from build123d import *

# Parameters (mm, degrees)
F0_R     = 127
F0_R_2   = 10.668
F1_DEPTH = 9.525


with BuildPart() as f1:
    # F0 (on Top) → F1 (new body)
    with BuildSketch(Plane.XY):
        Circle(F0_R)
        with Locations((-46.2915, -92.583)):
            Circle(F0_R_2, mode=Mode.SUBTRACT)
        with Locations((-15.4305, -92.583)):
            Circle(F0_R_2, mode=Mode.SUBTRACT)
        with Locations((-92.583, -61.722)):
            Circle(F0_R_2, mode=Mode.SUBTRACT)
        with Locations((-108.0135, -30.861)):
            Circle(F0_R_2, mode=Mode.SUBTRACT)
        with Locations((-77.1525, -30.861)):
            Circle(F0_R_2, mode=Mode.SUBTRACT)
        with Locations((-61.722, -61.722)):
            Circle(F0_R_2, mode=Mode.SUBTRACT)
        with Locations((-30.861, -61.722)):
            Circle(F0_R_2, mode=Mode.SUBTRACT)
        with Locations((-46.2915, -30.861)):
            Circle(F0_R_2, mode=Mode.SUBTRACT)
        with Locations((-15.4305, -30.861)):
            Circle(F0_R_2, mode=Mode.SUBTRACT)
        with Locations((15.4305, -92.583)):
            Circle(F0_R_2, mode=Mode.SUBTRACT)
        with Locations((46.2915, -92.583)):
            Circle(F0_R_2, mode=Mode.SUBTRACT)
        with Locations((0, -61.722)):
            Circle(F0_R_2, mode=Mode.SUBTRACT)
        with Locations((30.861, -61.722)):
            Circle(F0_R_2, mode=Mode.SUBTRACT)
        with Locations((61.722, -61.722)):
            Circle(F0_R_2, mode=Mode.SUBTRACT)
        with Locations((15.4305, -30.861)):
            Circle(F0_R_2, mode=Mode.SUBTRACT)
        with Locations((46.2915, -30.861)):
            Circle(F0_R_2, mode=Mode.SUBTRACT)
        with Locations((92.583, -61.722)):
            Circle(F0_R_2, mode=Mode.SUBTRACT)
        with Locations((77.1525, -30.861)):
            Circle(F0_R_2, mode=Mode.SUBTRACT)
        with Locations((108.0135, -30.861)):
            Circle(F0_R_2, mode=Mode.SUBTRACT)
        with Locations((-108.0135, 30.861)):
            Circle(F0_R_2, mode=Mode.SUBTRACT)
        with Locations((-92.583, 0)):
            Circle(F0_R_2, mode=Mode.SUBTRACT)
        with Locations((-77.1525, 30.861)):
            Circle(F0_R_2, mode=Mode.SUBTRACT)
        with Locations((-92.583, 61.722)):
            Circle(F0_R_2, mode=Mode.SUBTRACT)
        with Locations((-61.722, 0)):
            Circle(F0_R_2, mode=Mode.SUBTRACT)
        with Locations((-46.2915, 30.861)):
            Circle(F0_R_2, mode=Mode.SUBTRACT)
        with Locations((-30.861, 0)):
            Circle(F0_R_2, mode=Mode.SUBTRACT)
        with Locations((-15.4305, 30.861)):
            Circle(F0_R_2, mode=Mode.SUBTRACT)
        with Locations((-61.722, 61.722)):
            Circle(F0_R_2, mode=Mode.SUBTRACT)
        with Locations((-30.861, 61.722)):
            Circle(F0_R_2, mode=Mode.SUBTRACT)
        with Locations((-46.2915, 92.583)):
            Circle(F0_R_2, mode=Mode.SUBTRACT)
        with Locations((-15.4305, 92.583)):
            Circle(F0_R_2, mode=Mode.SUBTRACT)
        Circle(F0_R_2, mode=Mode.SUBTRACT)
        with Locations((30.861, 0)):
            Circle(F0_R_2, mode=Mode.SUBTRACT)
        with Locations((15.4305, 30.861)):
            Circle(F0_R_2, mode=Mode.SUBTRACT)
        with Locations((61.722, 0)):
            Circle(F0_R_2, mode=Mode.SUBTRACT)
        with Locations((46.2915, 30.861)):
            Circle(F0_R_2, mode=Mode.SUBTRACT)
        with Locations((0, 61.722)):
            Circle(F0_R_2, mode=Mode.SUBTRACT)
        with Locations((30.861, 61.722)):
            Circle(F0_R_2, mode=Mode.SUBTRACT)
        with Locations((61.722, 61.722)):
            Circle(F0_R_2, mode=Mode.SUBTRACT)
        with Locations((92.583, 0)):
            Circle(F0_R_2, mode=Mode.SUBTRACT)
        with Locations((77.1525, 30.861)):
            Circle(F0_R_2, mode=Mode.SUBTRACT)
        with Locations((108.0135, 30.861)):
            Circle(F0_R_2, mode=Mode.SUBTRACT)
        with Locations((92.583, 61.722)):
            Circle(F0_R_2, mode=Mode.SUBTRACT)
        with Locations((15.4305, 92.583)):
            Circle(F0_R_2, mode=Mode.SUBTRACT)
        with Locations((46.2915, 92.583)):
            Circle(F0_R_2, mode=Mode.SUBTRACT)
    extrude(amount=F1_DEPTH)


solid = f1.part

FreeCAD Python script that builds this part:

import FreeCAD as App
import Part
import Sketcher
Q = App.Units.Quantity

doc = App.newDocument("Part")
params = doc.addObject("Spreadsheet::Sheet", "Params")
for row, (alias, value) in enumerate([
    ("sketch1_diameter", "10 in"),
    ("sketch1_diameter2", "0.84 in"),
    ("pad1_length", "0.375 in"),
], start=1):
    params.set(f"A{row}", alias)
    params.set(f"B{row}", "=" + value)
    params.setAlias(f"B{row}", alias)

body = doc.addObject("PartDesign::Body", "Body")

sketch1 = body.newObject("Sketcher::SketchObject", "Sketch")
sketch1.AttachmentSupport = (doc.getObject("XY_Plane"), [""])
sketch1.MapMode = "FlatFace"
sketch1.addGeometry([
    Part.Circle(App.Vector(0, 0, 0), App.Vector(0, 0, 1), 127),
    Part.Circle(App.Vector(-92.583, -61.722, 0), App.Vector(0, 0, 1), 10.668),
    Part.Circle(App.Vector(-61.722, -61.722, 0), App.Vector(0, 0, 1), 10.668),
    Part.Circle(App.Vector(-46.2915, -92.583, 0), App.Vector(0, 0, 1), 10.668),
    Part.Circle(App.Vector(-15.4305, -92.583, 0), App.Vector(0, 0, 1), 10.668),
    Part.Circle(App.Vector(-30.861, -61.722, 0), App.Vector(0, 0, 1), 10.668),
    Part.Circle(App.Vector(-108.0135, -30.861, 0), App.Vector(0, 0, 1), 10.668),
    Part.Circle(App.Vector(-77.1525, -30.861, 0), App.Vector(0, 0, 1), 10.668),
    Part.Circle(App.Vector(-46.2915, -30.861, 0), App.Vector(0, 0, 1), 10.668),
    Part.Circle(App.Vector(-15.4305, -30.861, 0), App.Vector(0, 0, 1), 10.668),
    Part.Circle(App.Vector(15.4305, -92.583, 0), App.Vector(0, 0, 1), 10.668),
    Part.Circle(App.Vector(46.2915, -92.583, 0), App.Vector(0, 0, 1), 10.668),
    Part.Circle(App.Vector(0, -61.722, 0), App.Vector(0, 0, 1), 10.668),
    Part.Circle(App.Vector(30.861, -61.722, 0), App.Vector(0, 0, 1), 10.668),
    Part.Circle(App.Vector(61.722, -61.722, 0), App.Vector(0, 0, 1), 10.668),
    Part.Circle(App.Vector(92.583, -61.722, 0), App.Vector(0, 0, 1), 10.668),
    Part.Circle(App.Vector(15.4305, -30.861, 0), App.Vector(0, 0, 1), 10.668),
    Part.Circle(App.Vector(46.2915, -30.861, 0), App.Vector(0, 0, 1), 10.668),
    Part.Circle(App.Vector(77.1525, -30.861, 0), App.Vector(0, 0, 1), 10.668),
    Part.Circle(App.Vector(108.0135, -30.861, 0), App.Vector(0, 0, 1), 10.668),
    Part.Circle(App.Vector(-92.583, 0, 0), App.Vector(0, 0, 1), 10.668),
    Part.Circle(App.Vector(-61.722, 0, 0), App.Vector(0, 0, 1), 10.668),
    Part.Circle(App.Vector(-108.0135, 30.861, 0), App.Vector(0, 0, 1), 10.668),
    Part.Circle(App.Vector(-77.1525, 30.861, 0), App.Vector(0, 0, 1), 10.668),
    Part.Circle(App.Vector(-30.861, 0, 0), App.Vector(0, 0, 1), 10.668),
    Part.Circle(App.Vector(-46.2915, 30.861, 0), App.Vector(0, 0, 1), 10.668),
    Part.Circle(App.Vector(-15.4305, 30.861, 0), App.Vector(0, 0, 1), 10.668),
    Part.Circle(App.Vector(-92.583, 61.722, 0), App.Vector(0, 0, 1), 10.668),
    Part.Circle(App.Vector(-61.722, 61.722, 0), App.Vector(0, 0, 1), 10.668),
    Part.Circle(App.Vector(-30.861, 61.722, 0), App.Vector(0, 0, 1), 10.668),
    Part.Circle(App.Vector(-46.2915, 92.583, 0), App.Vector(0, 0, 1), 10.668),
    Part.Circle(App.Vector(-15.4305, 92.583, 0), App.Vector(0, 0, 1), 10.668),
    Part.Circle(App.Vector(0, 0, 0), App.Vector(0, 0, 1), 10.668),
    Part.Circle(App.Vector(30.861, 0, 0), App.Vector(0, 0, 1), 10.668),
    Part.Circle(App.Vector(15.4305, 30.861, 0), App.Vector(0, 0, 1), 10.668),
    Part.Circle(App.Vector(46.2915, 30.861, 0), App.Vector(0, 0, 1), 10.668),
    Part.Circle(App.Vector(61.722, 0, 0), App.Vector(0, 0, 1), 10.668),
    Part.Circle(App.Vector(92.583, 0, 0), App.Vector(0, 0, 1), 10.668),
    Part.Circle(App.Vector(77.1525, 30.861, 0), App.Vector(0, 0, 1), 10.668),
    Part.Circle(App.Vector(108.0135, 30.861, 0), App.Vector(0, 0, 1), 10.668),
    Part.Circle(App.Vector(0, 61.722, 0), App.Vector(0, 0, 1), 10.668),
    Part.Circle(App.Vector(30.861, 61.722, 0), App.Vector(0, 0, 1), 10.668),
    Part.Circle(App.Vector(15.4305, 92.583, 0), App.Vector(0, 0, 1), 10.668),
    Part.Circle(App.Vector(46.2915, 92.583, 0), App.Vector(0, 0, 1), 10.668),
    Part.Circle(App.Vector(61.722, 61.722, 0), App.Vector(0, 0, 1), 10.668),
    Part.Circle(App.Vector(92.583, 61.722, 0), App.Vector(0, 0, 1), 10.668),
], False)
sketch1.addConstraint([
    Sketcher.Constraint("Coincident", 0, 3, -1, 1),
    Sketcher.Constraint("Coincident", 32, 3, -1, 1),
    Sketcher.Constraint("Equal", 1, 2),
    Sketcher.Constraint("Equal", 2, 3),
    Sketcher.Constraint("Equal", 3, 4),
    Sketcher.Constraint("Equal", 4, 5),
    Sketcher.Constraint("Equal", 5, 6),
    Sketcher.Constraint("Equal", 6, 7),
    Sketcher.Constraint("Equal", 7, 8),
    Sketcher.Constraint("Equal", 8, 9),
    Sketcher.Constraint("Equal", 9, 10),
    Sketcher.Constraint("Equal", 10, 11),
    Sketcher.Constraint("Equal", 11, 12),
    Sketcher.Constraint("Equal", 12, 13),
    Sketcher.Constraint("Equal", 13, 14),
    Sketcher.Constraint("Equal", 14, 15),
    Sketcher.Constraint("Equal", 15, 16),
    Sketcher.Constraint("Equal", 16, 17),
    Sketcher.Constraint("Equal", 17, 18),
    Sketcher.Constraint("Equal", 18, 19),
    Sketcher.Constraint("Equal", 19, 20),
    Sketcher.Constraint("Equal", 20, 21),
    Sketcher.Constraint("Equal", 21, 22),
    Sketcher.Constraint("Equal", 22, 23),
    Sketcher.Constraint("Equal", 23, 24),
    Sketcher.Constraint("Equal", 24, 25),
    Sketcher.Constraint("Equal", 25, 26),
    Sketcher.Constraint("Equal", 26, 27),
    Sketcher.Constraint("Equal", 27, 28),
    Sketcher.Constraint("Equal", 28, 29),
    Sketcher.Constraint("Equal", 29, 30),
    Sketcher.Constraint("Equal", 30, 31),
    Sketcher.Constraint("Equal", 31, 32),
    Sketcher.Constraint("Equal", 32, 33),
    Sketcher.Constraint("Equal", 33, 34),
    Sketcher.Constraint("Equal", 34, 35),
    Sketcher.Constraint("Equal", 35, 36),
    Sketcher.Constraint("Equal", 36, 37),
    Sketcher.Constraint("Equal", 37, 38),
    Sketcher.Constraint("Equal", 38, 39),
    Sketcher.Constraint("Equal", 39, 40),
    Sketcher.Constraint("Equal", 40, 41),
    Sketcher.Constraint("Equal", 41, 42),
    Sketcher.Constraint("Equal", 42, 43),
    Sketcher.Constraint("Equal", 43, 44),
    Sketcher.Constraint("Equal", 44, 45),
    Sketcher.Constraint("Symmetric", 19, 3, 22, 3, -1, 1),
    Sketcher.Constraint("Symmetric", 18, 3, 23, 3, -1, 1),
    Sketcher.Constraint("Symmetric", 17, 3, 25, 3, -1, 1),
    Sketcher.Constraint("Symmetric", 16, 3, 26, 3, -1, 1),
    Sketcher.Constraint("Symmetric", 15, 3, 27, 3, -1, 1),
    Sketcher.Constraint("Symmetric", 14, 3, 28, 3, -1, 1),
    Sketcher.Constraint("Symmetric", 13, 3, 29, 3, -1, 1),
    Sketcher.Constraint("Symmetric", 11, 3, 30, 3, -1, 1),
    Sketcher.Constraint("Symmetric", 10, 3, 31, 3, -1, 1),
    Sketcher.Constraint("Symmetric", 24, 3, 33, 3, -1, 1),
    Sketcher.Constraint("Symmetric", 9, 3, 34, 3, -1, 1),
    Sketcher.Constraint("Symmetric", 8, 3, 35, 3, -1, 1),
    Sketcher.Constraint("Symmetric", 21, 3, 36, 3, -1, 1),
    Sketcher.Constraint("Symmetric", 20, 3, 37, 3, -1, 1),
    Sketcher.Constraint("Symmetric", 7, 3, 38, 3, -1, 1),
    Sketcher.Constraint("Symmetric", 6, 3, 39, 3, -1, 1),
    Sketcher.Constraint("Symmetric", 12, 3, 40, 3, -1, 1),
    Sketcher.Constraint("Symmetric", 5, 3, 41, 3, -1, 1),
    Sketcher.Constraint("Symmetric", 4, 3, 42, 3, -1, 1),
    Sketcher.Constraint("Symmetric", 3, 3, 43, 3, -1, 1),
    Sketcher.Constraint("Symmetric", 2, 3, 44, 3, -1, 1),
    Sketcher.Constraint("Symmetric", 1, 3, 45, 3, -1, 1),
    Sketcher.Constraint("Symmetric", 4, 3, 10, 3, -2),
    Sketcher.Constraint("Symmetric", 3, 3, 11, 3, -2),
    Sketcher.Constraint("Symmetric", 5, 3, 13, 3, -2),
    Sketcher.Constraint("Symmetric", 2, 3, 14, 3, -2),
    Sketcher.Constraint("Symmetric", 1, 3, 15, 3, -2),
    Sketcher.Constraint("Symmetric", 9, 3, 16, 3, -2),
    Sketcher.Constraint("Symmetric", 8, 3, 17, 3, -2),
    Sketcher.Constraint("Symmetric", 7, 3, 18, 3, -2),
    Sketcher.Constraint("Symmetric", 6, 3, 19, 3, -2),
    Sketcher.Constraint("PointOnObject", 12, 3, -2),
    Sketcher.Constraint("PointOnObject", 20, 3, -1),
    Sketcher.Constraint("PointOnObject", 21, 3, -1),
    Sketcher.Constraint("PointOnObject", 24, 3, -1),
    Sketcher.Constraint("Horizontal", 1, 3, 2, 3),
    Sketcher.Constraint("Horizontal", 3, 3, 4, 3),
    Sketcher.Constraint("Horizontal", 2, 3, 5, 3),
    Sketcher.Constraint("Horizontal", 6, 3, 7, 3),
    Sketcher.Constraint("Horizontal", 7, 3, 8, 3),
    Sketcher.Constraint("Horizontal", 8, 3, 9, 3),
    Sketcher.Constraint("Horizontal", 5, 3, 12, 3),
    Sketcher.Constraint("Vertical", 3, 3, 8, 3),
    Sketcher.Constraint("Vertical", 4, 3, 9, 3),
    Sketcher.Constraint("Vertical", 1, 3, 20, 3),
    Sketcher.Constraint("Vertical", 2, 3, 21, 3),
    Sketcher.Constraint("Vertical", 5, 3, 24, 3),
    Sketcher.Constraint("Diameter", 0, Q("10 in")),
    Sketcher.Constraint("Diameter", 1, Q("0.84 in")),
    Sketcher.Constraint("DistanceY", 1, 3, -1, 1, Q("2.43 in")),
    Sketcher.Constraint("DistanceX", 2, 3, -1, 1, Q("2.43 in")),
    Sketcher.Constraint("DistanceX", 1, 3, 5, 3, Q("2.43 in")),
    Sketcher.Constraint("DistanceX", 6, 3, 3, 3, Q("2.43 in")),
    Sketcher.Constraint("DistanceY", 3, 3, 6, 3, Q("2.43 in")),
    Sketcher.Constraint("DistanceX", 3, 3, 10, 3, Q("2.43 in")),
    Sketcher.Constraint("DistanceX", 16, 3, 18, 3, Q("2.43 in")),
    Sketcher.Constraint("DistanceY", 6, 3, 22, 3, Q("2.43 in")),
    Sketcher.Constraint("DistanceX", 1, 3, -1, 1, Q("3.645 in")),
    Sketcher.Constraint("DistanceX", 3, 3, 4, 3, Q("1.215 in")),
])
sketch1.setExpression("Constraints[93]", "Params.sketch1_diameter")
sketch1.setExpression("Constraints[94]", "Params.sketch1_diameter2")
pad1 = body.newObject("PartDesign::Pad", "Pad")
pad1.Profile = sketch1
pad1.setExpression("Length", "Params.pad1_length")

doc.recompute()
